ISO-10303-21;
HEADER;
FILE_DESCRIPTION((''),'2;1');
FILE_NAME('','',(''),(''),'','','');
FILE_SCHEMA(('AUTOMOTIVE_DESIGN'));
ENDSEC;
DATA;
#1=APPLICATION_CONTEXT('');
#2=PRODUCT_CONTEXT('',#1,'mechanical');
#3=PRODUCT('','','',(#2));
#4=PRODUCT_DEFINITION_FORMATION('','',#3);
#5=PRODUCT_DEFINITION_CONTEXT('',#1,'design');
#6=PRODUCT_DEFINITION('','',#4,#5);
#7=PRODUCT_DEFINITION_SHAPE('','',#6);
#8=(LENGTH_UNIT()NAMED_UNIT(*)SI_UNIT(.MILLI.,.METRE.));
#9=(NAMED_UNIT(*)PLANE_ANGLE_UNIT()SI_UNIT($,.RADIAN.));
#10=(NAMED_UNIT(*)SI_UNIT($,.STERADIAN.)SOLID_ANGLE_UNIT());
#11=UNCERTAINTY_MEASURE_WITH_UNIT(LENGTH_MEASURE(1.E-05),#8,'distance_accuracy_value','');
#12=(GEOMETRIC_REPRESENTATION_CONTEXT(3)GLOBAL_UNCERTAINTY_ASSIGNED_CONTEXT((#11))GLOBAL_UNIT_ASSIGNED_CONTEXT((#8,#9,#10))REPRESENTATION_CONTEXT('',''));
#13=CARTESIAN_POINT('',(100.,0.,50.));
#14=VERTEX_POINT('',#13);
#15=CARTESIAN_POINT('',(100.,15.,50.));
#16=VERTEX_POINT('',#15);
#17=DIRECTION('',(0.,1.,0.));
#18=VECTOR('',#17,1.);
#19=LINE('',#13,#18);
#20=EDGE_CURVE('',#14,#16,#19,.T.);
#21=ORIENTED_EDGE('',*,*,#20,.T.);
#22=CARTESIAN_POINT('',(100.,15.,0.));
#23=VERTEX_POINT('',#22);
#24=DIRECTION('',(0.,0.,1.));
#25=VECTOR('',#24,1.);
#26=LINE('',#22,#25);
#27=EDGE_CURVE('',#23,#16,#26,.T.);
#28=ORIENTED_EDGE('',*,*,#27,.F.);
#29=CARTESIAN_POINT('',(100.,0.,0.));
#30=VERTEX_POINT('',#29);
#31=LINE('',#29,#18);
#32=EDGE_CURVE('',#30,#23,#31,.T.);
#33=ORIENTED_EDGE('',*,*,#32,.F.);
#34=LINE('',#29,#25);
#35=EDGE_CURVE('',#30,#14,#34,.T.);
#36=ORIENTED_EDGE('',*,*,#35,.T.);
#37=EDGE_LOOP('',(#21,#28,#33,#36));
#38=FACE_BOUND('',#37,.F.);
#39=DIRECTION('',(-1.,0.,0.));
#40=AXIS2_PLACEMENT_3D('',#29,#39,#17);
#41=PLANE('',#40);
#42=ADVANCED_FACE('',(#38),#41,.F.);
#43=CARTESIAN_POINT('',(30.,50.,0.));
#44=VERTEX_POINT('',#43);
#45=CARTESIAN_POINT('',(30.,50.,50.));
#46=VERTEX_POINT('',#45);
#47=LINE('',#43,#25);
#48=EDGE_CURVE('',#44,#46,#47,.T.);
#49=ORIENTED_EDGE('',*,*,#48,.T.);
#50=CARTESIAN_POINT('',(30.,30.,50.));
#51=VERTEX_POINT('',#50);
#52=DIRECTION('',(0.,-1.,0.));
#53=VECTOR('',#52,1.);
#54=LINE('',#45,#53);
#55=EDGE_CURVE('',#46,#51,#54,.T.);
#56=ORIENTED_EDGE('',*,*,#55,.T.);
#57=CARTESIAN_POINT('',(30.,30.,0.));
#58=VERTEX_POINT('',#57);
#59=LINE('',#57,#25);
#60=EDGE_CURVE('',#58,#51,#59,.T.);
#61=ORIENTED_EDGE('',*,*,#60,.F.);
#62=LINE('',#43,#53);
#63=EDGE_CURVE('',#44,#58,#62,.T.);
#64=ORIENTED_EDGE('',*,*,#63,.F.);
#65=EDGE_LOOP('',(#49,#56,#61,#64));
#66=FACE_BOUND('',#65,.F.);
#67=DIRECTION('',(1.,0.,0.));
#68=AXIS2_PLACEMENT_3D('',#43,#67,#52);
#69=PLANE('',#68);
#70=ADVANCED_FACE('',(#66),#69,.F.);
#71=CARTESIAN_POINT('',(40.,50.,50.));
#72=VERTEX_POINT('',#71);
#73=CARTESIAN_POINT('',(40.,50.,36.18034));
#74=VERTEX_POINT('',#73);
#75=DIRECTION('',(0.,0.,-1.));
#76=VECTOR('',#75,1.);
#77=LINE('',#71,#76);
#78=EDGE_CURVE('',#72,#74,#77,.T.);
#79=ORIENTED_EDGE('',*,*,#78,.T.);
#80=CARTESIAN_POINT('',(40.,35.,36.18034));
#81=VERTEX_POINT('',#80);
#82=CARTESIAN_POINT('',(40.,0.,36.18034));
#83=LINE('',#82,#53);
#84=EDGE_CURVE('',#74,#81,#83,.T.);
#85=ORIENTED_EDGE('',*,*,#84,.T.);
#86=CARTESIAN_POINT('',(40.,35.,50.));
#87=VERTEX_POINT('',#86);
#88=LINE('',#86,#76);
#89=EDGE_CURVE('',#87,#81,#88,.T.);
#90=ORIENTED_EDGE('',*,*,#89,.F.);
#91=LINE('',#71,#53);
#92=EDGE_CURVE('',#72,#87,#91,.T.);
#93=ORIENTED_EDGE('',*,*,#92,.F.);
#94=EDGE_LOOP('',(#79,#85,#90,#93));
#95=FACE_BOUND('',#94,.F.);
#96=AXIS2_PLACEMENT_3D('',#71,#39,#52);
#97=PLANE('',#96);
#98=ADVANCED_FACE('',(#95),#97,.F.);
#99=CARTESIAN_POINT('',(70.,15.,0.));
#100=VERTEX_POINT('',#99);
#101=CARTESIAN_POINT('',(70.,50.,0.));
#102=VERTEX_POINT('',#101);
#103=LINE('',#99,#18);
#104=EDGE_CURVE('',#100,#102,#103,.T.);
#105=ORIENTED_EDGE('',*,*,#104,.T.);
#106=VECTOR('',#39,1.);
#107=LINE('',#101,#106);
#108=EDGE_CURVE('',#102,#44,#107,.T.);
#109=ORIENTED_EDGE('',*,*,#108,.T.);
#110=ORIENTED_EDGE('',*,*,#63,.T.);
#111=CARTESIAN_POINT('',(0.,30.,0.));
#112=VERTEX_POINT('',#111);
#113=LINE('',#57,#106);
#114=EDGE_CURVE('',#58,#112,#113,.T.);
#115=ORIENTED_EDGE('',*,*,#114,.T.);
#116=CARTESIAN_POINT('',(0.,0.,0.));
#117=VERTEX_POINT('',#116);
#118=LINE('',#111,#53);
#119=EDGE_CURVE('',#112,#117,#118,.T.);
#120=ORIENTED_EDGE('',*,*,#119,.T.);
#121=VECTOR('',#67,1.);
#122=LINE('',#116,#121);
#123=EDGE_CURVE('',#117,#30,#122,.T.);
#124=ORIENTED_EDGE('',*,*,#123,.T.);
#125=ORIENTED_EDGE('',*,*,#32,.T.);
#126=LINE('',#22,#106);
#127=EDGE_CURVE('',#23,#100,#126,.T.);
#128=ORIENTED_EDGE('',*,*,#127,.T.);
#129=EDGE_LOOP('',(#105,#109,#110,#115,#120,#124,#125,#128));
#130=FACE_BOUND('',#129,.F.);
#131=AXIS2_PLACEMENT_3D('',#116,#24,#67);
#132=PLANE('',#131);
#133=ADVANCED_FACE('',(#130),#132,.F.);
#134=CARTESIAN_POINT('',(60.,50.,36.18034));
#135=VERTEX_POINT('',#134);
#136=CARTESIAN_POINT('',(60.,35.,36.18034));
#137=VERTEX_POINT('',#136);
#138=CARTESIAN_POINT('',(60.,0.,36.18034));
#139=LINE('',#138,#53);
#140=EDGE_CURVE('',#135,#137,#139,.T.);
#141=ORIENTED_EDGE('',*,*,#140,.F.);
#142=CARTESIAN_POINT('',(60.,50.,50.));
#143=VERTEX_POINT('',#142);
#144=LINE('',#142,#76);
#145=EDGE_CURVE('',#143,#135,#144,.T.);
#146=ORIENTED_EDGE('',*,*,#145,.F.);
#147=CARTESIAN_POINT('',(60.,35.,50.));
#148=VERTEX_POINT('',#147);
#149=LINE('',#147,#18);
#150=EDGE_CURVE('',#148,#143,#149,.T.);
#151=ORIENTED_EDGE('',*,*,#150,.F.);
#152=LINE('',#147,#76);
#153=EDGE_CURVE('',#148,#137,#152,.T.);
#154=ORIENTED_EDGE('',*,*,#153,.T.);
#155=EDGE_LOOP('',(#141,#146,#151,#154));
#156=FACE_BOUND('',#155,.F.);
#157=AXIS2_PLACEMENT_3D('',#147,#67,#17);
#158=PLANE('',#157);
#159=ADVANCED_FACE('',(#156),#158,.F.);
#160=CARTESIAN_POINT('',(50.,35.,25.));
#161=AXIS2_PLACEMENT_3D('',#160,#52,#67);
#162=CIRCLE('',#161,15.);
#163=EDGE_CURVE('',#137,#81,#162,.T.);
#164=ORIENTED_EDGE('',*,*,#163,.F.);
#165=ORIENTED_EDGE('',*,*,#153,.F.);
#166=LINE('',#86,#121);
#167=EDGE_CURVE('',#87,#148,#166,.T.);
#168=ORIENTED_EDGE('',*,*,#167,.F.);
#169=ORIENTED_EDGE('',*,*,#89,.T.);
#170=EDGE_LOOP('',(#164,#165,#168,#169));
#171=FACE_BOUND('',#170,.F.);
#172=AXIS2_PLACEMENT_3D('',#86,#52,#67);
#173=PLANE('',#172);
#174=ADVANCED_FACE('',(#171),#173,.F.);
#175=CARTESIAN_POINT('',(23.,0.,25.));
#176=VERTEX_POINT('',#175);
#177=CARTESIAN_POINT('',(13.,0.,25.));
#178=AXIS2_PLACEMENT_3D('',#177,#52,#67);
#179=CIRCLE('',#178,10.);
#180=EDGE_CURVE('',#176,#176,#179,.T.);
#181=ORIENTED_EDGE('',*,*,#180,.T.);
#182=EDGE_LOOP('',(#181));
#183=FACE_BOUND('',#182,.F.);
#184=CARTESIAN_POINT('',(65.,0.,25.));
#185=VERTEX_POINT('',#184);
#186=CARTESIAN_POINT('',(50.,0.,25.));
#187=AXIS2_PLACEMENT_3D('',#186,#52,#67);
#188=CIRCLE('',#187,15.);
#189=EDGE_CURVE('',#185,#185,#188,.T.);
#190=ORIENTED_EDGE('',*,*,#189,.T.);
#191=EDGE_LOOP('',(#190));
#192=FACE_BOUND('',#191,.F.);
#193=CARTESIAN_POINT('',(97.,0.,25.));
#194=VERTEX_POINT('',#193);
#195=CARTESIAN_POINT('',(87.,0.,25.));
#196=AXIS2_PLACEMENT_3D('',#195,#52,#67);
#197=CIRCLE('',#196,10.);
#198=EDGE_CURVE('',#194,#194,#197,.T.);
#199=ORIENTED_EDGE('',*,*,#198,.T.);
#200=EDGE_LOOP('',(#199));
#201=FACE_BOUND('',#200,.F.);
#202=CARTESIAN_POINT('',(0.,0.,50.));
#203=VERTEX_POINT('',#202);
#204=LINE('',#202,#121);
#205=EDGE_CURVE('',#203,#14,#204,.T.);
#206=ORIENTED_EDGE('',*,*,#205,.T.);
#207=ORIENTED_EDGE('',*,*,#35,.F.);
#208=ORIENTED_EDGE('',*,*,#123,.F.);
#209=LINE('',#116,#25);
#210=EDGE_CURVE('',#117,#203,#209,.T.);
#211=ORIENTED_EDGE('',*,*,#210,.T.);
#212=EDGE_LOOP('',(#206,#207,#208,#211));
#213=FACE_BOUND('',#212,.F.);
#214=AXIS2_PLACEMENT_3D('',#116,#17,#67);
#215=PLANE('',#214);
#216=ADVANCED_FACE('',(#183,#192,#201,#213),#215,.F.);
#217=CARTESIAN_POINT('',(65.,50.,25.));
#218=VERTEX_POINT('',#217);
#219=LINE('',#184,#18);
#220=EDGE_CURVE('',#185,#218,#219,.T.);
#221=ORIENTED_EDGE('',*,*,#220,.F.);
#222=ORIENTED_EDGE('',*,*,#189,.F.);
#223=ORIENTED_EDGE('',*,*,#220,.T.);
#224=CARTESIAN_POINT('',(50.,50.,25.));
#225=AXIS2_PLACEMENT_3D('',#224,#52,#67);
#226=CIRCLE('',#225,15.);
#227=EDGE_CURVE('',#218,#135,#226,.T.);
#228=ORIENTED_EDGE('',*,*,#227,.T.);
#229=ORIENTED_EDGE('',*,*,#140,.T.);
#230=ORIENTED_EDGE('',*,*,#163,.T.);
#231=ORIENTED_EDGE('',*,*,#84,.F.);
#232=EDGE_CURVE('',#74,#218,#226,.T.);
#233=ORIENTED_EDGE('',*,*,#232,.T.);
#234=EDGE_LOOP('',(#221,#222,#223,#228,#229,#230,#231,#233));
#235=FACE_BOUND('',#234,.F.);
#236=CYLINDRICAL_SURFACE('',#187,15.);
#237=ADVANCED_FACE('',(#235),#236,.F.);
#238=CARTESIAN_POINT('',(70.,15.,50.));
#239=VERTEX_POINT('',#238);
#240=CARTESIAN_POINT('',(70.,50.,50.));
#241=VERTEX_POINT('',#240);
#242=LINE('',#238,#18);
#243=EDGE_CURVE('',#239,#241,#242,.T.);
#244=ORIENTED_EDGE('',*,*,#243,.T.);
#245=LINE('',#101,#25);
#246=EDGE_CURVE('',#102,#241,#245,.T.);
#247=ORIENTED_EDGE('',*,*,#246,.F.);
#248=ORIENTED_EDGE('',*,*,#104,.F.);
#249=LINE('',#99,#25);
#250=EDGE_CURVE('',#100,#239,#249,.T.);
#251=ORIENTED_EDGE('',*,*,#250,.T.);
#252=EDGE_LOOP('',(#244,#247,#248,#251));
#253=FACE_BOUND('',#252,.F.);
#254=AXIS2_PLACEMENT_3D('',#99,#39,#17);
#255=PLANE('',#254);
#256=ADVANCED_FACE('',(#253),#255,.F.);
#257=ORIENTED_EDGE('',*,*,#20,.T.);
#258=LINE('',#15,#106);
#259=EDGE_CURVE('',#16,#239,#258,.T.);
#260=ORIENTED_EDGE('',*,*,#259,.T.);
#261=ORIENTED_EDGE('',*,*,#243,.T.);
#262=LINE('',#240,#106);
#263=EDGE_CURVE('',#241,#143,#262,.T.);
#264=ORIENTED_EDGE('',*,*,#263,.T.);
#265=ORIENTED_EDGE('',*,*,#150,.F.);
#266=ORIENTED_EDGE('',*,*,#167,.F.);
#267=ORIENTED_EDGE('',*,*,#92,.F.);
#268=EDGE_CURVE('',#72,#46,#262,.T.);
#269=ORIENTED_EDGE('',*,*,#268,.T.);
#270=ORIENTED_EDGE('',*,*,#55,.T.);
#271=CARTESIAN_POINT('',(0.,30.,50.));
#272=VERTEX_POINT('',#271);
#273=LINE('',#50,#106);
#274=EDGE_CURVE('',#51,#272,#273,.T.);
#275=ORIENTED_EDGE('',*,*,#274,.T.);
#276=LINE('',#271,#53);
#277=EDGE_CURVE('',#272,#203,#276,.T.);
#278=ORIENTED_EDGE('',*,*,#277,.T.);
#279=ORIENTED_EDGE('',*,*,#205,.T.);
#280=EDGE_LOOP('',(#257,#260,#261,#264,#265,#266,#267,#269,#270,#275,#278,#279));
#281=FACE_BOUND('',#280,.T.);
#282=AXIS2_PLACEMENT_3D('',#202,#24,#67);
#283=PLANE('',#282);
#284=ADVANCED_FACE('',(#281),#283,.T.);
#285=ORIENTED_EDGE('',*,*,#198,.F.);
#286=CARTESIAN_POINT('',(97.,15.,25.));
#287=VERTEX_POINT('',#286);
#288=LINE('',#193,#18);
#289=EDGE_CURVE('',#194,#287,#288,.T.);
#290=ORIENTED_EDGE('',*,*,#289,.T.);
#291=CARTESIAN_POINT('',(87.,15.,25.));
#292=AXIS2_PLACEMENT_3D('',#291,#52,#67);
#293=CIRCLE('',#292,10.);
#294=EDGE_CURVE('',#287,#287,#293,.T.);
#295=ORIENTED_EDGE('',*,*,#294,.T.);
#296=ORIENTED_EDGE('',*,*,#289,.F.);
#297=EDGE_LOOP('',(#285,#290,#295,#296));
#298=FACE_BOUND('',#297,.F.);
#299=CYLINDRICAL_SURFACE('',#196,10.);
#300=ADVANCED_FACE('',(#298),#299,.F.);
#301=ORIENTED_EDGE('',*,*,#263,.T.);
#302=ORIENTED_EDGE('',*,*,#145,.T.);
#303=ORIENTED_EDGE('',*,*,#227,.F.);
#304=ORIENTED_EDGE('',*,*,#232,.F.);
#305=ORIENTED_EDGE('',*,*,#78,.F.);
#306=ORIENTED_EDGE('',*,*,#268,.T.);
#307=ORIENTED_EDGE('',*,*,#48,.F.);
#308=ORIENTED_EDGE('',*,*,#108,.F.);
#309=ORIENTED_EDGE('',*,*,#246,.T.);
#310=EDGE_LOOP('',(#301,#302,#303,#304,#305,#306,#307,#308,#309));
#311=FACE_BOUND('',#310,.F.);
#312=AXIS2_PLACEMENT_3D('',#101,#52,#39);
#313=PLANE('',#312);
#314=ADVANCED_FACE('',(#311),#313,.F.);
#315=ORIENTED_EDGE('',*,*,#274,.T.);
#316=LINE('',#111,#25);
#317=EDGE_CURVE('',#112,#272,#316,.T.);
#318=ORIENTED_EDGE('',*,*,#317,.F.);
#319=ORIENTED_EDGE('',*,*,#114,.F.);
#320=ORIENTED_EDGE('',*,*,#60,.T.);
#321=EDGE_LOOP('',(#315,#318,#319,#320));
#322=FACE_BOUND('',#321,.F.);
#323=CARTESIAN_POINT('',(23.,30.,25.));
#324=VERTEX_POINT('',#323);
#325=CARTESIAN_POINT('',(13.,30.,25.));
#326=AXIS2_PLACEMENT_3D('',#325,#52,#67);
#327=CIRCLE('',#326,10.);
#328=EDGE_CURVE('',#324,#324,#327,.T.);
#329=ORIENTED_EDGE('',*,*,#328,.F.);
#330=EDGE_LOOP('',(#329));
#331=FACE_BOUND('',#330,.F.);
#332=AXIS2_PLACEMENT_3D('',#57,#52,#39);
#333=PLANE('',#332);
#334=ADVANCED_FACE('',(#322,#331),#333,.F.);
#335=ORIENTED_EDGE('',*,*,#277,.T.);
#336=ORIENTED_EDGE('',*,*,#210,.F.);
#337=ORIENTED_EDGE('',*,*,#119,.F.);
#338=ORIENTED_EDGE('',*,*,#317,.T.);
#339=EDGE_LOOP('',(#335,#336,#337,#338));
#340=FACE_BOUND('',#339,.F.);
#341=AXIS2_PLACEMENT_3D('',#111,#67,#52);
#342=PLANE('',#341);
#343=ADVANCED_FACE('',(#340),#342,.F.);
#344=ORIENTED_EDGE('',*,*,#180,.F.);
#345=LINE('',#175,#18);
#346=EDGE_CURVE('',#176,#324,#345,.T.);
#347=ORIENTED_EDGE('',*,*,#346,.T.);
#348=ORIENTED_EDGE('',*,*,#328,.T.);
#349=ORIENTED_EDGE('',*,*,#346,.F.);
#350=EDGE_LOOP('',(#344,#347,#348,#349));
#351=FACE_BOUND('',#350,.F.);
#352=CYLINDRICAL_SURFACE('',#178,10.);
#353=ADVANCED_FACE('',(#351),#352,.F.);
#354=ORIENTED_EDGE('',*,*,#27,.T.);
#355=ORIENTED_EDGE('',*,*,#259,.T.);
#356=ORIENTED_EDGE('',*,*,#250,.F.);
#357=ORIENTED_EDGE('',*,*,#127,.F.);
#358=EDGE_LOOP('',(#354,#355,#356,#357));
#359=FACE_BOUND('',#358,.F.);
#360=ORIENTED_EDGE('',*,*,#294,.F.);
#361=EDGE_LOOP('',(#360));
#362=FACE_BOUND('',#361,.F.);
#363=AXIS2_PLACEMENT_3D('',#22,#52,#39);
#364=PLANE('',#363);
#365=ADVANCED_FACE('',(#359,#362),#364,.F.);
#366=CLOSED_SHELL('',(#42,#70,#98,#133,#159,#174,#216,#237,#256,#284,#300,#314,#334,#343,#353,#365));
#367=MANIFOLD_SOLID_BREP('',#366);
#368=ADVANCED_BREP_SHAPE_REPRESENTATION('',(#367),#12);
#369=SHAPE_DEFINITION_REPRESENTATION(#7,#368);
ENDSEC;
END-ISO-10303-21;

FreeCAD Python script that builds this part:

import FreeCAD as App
import Part
import Sketcher


def add_polygon(sketch, points):
    """Adds a closed chain of lines whose ends are joined by coincident constraints."""
    first, n = sketch.GeometryCount, len(points)
    for a, b in zip(points, points[1:] + points[:1]):
        sketch.addGeometry(Part.LineSegment(App.Vector(*a, 0), App.Vector(*b, 0)), False)
    for i in range(n):
        sketch.addConstraint(Sketcher.Constraint("Coincident", first + i, 2, first + (i + 1) % n, 1))

doc = App.newDocument("Part")
params = doc.addObject("Spreadsheet::Sheet", "Params")
for row, (alias, value) in enumerate([
    ("sketch1_width", "100 mm"),
    ("sketch1_width2", "30 mm"),
    ("sketch1_height", "15 mm"),
    ("sketch1_height2", "35 mm"),
    ("pad1_length", "50 mm"),
    ("sketch2_diameter", "20 mm"),
    ("sketch2_diameter2", "30 mm"),
    ("pocket1_length", "50 mm"),
    ("sketch3_width", "20 mm"),
    ("sketch3_height", "15 mm"),
    ("pocket2_length", "15 mm"),
], start=1):
    params.set(f"A{row}", alias)
    params.set(f"B{row}", "=" + value)
    params.setAlias(f"B{row}", alias)

body = doc.addObject("PartDesign::Body", "Body")

# Sketch on XY plane
sketch1 = body.newObject("Sketcher::SketchObject", "Sketch")
sketch1.AttachmentSupport = (doc.getObject("XY_Plane"), [""])
sketch1.MapMode = "FlatFace"
add_polygon(sketch1, [(0, 30), (0, 0), (100, 0), (100, 15), (70, 15), (70, 50), (30, 50), (30, 30)])  # lines 0-7
sketch1.addConstraint([
    Sketcher.Constraint("Vertical", 0),
    Sketcher.Constraint("Horizontal", 1),
    Sketcher.Constraint("Vertical", 2),
    Sketcher.Constraint("Horizontal", 3),
    Sketcher.Constraint("Vertical", 4),
    Sketcher.Constraint("Horizontal", 5),
    Sketcher.Constraint("Vertical", 6),
    Sketcher.Constraint("Horizontal", 7),
    Sketcher.Constraint("Coincident", 0, 2, -1, 1),
    Sketcher.Constraint("Equal", 3, 7),
    Sketcher.Constraint("Equal", 7, 0),
    Sketcher.Constraint("DistanceX", 1, 1, 1, 2, 100.0),
    Sketcher.Constraint("DistanceX", 3, 2, 3, 1, 30.0),
    Sketcher.Constraint("DistanceY", 2, 1, 2, 2, 15.0),
    Sketcher.Constraint("DistanceY", 4, 1, 4, 2, 35.0),
])
sketch1.setExpression("Constraints[19]", "Params.sketch1_width")
sketch1.setExpression("Constraints[20]", "Params.sketch1_width2")
sketch1.setExpression("Constraints[21]", "Params.sketch1_height")
sketch1.setExpression("Constraints[22]", "Params.sketch1_height2")
pad1 = body.newObject("PartDesign::Pad", "Pad")
pad1.Profile = sketch1
pad1.setExpression("Length", "Params.pad1_length")

# Sketch on XZ plane
sketch2 = body.newObject("Sketcher::SketchObject", "Sketch001")
sketch2.AttachmentSupport = (doc.getObject("XZ_Plane"), [""])
sketch2.MapMode = "FlatFace"
sketch2.addGeometry([
    Part.Circle(App.Vector(13, 25, 0), App.Vector(0, 0, 1), 10),
    Part.Circle(App.Vector(87, 25, 0), App.Vector(0, 0, 1), 10),
    Part.Circle(App.Vector(50, 25, 0), App.Vector(0, 0, 1), 15),
], False)
sketch2.addConstraint([
    Sketcher.Constraint("Equal", 0, 1),
    Sketcher.Constraint("Horizontal", 0, 3, 1, 3),
    Sketcher.Constraint("Horizontal", 1, 3, 2, 3),
    Sketcher.Constraint("Diameter", 0, 20.0),
    Sketcher.Constraint("Diameter", 2, 30.0),
    Sketcher.Constraint("DistanceX", -1, 1, 0, 3, 13.0),
    Sketcher.Constraint("DistanceY", -1, 1, 0, 3, 25.0),
    Sketcher.Constraint("DistanceX", -1, 1, 1, 3, 87.0),
    Sketcher.Constraint("DistanceX", -1, 1, 2, 3, 50.0),
])
sketch2.setExpression("Constraints[3]", "Params.sketch2_diameter")
sketch2.setExpression("Constraints[4]", "Params.sketch2_diameter2")
pocket1 = body.newObject("PartDesign::Pocket", "Pocket")
pocket1.Profile = sketch2
pocket1.setExpression("Length", "Params.pocket1_length")

# Sketch on XY plane
sketch3 = body.newObject("Sketcher::SketchObject", "Sketch002")
sketch3.AttachmentSupport = (doc.getObject("XY_Plane"), [""])
sketch3.MapMode = "FlatFace"
sketch3.AttachmentOffset = App.Placement(App.Vector(0, 0, 50), App.Rotation())
add_polygon(sketch3, [(60, 35), (60, 50), (40, 50), (40, 35)])  # lines 0-3
sketch3.addConstraint([
    Sketcher.Constraint("Vertical", 0),
    Sketcher.Constraint("Horizontal", 1),
    Sketcher.Constraint("Vertical", 2),
    Sketcher.Constraint("Horizontal", 3),
    Sketcher.Constraint("DistanceX", 1, 2, 1, 1, 20.0),
    Sketcher.Constraint("DistanceY", 0, 1, 0, 2, 15.0),
    Sketcher.Constraint("DistanceX", -1, 1, 0, 2, 60.0),
    Sketcher.Constraint("DistanceY", -1, 1, 0, 2, 50.0),
])
sketch3.setExpression("Constraints[8]", "Params.sketch3_width")
sketch3.setExpression("Constraints[9]", "Params.sketch3_height")
pocket2 = body.newObject("PartDesign::Pocket", "Pocket001")
pocket2.Profile = sketch3
pocket2.setExpression("Length", "Params.pocket2_length")

doc.recompute()
